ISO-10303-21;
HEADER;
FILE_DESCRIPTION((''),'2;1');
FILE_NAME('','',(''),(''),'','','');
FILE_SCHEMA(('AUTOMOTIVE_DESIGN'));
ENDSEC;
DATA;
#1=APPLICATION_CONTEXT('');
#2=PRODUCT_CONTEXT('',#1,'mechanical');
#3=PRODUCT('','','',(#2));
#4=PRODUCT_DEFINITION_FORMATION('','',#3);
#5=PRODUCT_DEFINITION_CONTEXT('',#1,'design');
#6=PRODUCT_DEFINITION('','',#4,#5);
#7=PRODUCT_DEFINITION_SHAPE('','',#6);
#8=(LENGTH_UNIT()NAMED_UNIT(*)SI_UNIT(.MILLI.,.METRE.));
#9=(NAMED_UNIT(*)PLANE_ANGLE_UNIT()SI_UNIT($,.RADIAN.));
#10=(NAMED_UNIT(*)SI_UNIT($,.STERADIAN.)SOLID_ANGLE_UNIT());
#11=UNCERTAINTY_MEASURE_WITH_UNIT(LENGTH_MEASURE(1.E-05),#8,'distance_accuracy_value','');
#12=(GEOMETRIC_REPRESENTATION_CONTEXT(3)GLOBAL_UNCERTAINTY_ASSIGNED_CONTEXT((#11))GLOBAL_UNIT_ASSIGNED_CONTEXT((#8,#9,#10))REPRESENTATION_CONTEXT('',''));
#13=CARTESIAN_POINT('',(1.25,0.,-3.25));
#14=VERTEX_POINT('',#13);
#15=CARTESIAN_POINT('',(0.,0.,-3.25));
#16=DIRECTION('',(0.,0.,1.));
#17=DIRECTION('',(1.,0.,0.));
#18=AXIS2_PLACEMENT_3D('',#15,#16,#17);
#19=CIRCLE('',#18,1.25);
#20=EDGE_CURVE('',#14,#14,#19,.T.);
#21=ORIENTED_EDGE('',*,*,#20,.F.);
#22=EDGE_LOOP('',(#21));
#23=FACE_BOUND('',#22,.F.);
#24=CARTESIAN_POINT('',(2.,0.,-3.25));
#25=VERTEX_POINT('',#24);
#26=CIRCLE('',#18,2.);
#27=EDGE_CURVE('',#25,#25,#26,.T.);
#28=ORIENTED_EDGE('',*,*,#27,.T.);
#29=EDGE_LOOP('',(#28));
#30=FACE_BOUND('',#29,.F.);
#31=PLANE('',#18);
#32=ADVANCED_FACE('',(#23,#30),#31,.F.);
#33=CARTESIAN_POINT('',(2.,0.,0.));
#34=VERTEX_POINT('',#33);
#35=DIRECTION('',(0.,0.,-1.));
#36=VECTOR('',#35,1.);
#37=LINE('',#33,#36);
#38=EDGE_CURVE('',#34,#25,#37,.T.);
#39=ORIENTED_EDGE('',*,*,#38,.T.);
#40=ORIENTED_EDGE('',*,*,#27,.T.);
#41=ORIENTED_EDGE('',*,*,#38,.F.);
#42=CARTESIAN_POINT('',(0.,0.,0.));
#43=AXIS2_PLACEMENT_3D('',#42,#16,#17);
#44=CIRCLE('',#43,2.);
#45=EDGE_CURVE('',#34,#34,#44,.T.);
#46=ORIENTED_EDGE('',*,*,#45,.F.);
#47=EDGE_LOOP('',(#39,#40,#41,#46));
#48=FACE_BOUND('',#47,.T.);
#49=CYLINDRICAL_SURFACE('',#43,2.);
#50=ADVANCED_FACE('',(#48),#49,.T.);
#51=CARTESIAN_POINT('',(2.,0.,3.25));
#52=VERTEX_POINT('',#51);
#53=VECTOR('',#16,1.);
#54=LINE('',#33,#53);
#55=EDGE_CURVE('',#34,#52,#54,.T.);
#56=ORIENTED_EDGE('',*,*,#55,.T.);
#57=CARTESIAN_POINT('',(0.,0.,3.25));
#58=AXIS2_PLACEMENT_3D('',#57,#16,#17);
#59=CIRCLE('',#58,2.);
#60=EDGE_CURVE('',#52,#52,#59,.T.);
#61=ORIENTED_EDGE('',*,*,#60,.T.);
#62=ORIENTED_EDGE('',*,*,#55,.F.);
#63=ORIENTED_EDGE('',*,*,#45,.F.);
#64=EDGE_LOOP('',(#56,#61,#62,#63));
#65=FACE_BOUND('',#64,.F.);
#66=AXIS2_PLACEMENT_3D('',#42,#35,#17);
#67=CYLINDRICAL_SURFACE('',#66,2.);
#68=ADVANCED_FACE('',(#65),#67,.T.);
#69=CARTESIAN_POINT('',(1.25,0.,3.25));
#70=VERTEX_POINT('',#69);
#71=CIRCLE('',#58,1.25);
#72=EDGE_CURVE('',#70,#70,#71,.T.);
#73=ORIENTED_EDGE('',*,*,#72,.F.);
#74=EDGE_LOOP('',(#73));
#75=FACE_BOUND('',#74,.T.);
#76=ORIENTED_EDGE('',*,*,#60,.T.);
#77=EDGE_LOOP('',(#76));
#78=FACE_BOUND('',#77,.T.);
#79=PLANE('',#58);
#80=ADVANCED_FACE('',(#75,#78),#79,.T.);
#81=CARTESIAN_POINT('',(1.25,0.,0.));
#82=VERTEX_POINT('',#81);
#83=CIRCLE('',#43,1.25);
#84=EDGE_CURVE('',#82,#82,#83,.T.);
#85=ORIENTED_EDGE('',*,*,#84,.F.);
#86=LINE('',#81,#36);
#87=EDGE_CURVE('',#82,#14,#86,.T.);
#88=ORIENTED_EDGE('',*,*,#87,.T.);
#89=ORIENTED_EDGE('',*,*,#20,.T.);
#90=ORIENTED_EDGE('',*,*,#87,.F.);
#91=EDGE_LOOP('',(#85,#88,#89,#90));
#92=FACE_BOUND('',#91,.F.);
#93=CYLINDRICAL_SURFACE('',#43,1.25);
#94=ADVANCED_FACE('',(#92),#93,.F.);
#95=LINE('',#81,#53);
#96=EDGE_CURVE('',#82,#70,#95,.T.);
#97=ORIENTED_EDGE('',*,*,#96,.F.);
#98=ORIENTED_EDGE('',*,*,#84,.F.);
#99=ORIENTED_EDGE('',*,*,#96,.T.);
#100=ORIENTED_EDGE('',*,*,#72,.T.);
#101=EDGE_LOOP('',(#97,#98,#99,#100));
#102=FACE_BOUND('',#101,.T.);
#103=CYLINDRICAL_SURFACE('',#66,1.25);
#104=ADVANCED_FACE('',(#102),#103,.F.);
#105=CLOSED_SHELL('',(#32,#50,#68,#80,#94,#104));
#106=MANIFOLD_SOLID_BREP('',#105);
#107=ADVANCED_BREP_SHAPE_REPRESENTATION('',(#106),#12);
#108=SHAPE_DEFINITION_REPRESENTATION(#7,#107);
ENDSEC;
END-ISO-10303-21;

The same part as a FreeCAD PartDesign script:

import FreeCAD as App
import Part
import Sketcher

V = App.Vector

doc = App.newDocument("Part")
body = doc.addObject("PartDesign::Body", "Body")

# Sketch on XY plane
sketch1 = doc.addObject("Sketcher::SketchObject", "Sketch")
body.addObject(sketch1)
sketch1.AttachmentSupport = (doc.XY_Plane, [""])
sketch1.MapMode = "FlatFace"
sketch1.addGeometry([
    Part.Circle(V(0, 0, 0), V(0, 0, 1), 2),
    Part.Circle(V(0, 0, 0), V(0, 0, 1), 1.2),
], False)
sketch1.addConstraint([
    Sketcher.Constraint("Coincident", 0, 3, -1, 1),
    Sketcher.Constraint("Coincident", 1, 3, -1, 1),
    Sketcher.Constraint("Diameter", 0, 4.0),
    Sketcher.Constraint("Diameter", 1, 2.5),
])
pad1 = doc.addObject("PartDesign::Pad", "Pad")
body.addObject(pad1)
pad1.Profile = sketch1
pad1.Length = 6.5
pad1.Midplane = True

doc.recompute()
